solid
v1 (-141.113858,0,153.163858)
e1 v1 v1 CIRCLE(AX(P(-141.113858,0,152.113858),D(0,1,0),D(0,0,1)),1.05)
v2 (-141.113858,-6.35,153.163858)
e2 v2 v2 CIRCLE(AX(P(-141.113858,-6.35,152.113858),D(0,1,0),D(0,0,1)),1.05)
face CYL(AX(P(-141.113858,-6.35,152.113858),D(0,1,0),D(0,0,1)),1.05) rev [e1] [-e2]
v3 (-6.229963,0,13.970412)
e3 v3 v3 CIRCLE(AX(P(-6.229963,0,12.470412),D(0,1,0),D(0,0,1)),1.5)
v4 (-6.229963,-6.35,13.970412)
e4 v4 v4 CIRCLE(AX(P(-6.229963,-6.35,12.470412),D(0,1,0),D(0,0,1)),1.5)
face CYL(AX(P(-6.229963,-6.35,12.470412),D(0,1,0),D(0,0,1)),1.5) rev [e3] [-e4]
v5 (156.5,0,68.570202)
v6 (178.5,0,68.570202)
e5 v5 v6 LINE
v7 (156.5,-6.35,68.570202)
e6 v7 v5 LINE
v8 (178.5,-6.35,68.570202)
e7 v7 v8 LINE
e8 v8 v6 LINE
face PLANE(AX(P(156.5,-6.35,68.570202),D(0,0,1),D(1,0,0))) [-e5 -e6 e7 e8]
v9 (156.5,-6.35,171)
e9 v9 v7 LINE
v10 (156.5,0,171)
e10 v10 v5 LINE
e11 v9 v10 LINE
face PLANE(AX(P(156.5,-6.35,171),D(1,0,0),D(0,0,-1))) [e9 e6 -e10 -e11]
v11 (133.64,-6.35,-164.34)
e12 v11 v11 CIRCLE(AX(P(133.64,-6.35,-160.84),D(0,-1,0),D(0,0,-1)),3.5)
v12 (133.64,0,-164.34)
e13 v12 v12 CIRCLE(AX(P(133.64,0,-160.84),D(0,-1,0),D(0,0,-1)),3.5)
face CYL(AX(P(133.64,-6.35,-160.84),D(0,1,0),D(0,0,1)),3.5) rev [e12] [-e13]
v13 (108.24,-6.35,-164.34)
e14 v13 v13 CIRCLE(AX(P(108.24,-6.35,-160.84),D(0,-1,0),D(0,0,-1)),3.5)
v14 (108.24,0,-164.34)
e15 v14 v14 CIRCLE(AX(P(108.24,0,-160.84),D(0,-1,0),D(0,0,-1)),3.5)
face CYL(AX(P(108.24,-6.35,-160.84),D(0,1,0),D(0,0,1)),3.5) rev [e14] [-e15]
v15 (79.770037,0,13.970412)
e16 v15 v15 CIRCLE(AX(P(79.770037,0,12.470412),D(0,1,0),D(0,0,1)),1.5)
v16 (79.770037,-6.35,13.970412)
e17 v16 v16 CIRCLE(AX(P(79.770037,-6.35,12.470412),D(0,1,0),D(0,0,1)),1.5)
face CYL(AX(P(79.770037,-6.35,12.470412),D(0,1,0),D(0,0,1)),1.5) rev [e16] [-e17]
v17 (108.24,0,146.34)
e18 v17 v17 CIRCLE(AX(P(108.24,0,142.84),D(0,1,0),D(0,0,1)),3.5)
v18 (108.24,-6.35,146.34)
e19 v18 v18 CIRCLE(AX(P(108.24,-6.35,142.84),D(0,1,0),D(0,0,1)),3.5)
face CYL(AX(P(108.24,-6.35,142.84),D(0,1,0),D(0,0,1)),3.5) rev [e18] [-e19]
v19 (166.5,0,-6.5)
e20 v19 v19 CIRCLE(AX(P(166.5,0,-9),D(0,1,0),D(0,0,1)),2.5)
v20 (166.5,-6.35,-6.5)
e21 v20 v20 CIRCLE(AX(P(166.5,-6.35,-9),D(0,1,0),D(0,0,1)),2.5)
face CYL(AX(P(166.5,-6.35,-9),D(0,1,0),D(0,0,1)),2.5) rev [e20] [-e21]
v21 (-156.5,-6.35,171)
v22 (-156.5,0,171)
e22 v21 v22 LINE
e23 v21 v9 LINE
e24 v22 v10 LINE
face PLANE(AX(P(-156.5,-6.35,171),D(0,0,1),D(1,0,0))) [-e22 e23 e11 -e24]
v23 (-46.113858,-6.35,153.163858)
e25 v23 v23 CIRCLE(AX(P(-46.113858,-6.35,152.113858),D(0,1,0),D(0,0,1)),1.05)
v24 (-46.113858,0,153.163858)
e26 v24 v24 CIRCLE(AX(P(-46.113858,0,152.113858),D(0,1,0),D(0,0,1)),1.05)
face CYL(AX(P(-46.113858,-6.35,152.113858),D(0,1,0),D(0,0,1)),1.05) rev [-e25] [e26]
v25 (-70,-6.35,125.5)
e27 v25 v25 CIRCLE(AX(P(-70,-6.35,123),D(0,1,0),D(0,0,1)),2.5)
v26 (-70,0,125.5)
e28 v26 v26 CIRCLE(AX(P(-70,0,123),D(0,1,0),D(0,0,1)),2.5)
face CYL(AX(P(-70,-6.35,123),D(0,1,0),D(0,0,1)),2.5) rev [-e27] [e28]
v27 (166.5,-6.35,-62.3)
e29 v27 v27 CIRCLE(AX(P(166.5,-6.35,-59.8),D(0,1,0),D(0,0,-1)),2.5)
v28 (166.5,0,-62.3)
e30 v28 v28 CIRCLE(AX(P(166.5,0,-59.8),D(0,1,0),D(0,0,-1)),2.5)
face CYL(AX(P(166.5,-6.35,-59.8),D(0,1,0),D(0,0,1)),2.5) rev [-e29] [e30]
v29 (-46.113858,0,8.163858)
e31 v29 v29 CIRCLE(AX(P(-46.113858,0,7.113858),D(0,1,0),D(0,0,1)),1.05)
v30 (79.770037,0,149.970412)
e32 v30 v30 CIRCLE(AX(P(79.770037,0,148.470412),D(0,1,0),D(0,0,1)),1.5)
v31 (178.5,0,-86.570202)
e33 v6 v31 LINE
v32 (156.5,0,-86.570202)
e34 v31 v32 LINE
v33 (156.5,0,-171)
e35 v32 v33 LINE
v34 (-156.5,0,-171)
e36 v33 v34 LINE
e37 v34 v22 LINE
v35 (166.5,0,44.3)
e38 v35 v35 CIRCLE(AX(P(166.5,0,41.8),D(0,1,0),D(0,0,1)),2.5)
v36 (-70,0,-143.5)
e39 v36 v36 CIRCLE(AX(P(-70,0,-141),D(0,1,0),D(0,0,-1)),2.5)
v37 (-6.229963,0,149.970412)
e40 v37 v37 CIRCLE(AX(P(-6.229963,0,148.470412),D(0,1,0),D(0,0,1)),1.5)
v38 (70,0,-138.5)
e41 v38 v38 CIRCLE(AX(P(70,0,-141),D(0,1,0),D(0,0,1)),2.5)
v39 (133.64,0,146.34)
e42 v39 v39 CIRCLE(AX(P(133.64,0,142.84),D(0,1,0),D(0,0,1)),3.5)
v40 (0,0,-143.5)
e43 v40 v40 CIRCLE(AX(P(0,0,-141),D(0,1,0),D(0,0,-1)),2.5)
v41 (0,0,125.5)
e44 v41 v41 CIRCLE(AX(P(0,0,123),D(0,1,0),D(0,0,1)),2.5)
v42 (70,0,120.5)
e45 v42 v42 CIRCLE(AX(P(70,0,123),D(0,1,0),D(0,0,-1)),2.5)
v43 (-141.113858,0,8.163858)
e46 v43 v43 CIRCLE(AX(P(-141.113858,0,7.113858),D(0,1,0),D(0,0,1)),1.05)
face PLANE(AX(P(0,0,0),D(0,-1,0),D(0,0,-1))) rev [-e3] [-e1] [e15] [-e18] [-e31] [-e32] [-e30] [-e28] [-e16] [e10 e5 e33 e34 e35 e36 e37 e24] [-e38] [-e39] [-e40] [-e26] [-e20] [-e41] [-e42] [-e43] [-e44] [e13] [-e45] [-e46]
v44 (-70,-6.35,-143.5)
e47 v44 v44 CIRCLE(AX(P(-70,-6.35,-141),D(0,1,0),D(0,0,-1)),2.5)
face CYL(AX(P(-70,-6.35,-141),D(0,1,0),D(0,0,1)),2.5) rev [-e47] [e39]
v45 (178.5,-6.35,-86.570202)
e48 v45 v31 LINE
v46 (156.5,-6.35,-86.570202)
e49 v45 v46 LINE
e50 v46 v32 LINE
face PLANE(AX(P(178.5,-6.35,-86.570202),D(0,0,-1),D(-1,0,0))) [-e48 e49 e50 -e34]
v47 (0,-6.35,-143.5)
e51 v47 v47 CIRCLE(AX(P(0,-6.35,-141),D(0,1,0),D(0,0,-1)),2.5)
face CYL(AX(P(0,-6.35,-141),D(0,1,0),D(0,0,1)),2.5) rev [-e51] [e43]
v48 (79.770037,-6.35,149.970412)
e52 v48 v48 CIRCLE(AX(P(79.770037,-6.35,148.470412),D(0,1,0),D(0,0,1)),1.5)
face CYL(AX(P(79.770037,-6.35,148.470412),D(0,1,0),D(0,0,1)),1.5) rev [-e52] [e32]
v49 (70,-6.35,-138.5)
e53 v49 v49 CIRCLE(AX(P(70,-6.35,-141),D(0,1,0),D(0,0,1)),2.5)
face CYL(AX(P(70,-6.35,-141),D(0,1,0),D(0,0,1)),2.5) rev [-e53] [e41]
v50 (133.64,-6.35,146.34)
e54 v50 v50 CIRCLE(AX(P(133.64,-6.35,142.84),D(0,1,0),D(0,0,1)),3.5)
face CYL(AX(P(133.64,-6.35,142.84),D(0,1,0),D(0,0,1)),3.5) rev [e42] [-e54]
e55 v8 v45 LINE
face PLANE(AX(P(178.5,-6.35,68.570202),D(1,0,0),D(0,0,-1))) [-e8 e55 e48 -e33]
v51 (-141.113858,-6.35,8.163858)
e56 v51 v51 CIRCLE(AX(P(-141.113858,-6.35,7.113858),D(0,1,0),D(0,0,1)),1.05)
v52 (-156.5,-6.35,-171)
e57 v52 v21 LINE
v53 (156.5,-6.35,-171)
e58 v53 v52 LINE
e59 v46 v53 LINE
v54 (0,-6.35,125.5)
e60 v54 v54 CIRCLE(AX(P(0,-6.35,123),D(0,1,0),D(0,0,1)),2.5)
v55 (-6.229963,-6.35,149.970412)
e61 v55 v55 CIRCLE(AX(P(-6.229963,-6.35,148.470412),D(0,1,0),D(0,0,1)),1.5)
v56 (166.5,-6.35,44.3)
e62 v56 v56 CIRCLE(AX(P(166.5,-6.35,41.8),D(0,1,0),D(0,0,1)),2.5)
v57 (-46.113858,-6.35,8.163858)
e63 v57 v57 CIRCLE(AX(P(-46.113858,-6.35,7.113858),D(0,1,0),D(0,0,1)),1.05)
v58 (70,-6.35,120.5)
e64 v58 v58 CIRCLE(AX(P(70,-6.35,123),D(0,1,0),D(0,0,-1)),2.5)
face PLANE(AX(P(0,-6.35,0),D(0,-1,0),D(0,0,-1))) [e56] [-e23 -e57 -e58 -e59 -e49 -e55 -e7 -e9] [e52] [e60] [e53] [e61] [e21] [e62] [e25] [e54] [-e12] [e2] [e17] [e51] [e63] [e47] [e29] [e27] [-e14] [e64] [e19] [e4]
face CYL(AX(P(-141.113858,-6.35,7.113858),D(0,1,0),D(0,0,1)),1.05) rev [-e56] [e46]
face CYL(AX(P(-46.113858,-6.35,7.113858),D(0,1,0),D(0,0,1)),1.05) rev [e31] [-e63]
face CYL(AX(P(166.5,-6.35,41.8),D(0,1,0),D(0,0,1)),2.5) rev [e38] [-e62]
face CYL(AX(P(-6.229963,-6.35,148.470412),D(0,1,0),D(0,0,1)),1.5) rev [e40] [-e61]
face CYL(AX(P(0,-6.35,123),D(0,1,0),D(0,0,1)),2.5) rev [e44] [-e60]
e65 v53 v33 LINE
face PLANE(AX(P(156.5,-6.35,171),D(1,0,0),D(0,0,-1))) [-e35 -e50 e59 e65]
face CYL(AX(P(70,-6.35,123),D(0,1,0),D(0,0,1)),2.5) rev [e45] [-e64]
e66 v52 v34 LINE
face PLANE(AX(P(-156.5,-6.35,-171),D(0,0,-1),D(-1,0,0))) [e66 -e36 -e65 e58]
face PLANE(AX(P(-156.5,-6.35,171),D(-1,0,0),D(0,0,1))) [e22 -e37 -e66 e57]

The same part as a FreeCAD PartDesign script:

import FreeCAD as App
import Part
import Sketcher
from FreeCAD import Vector

doc = App.newDocument("Part")
params = doc.addObject("Spreadsheet::Sheet", "Params")
for row, (alias, value) in enumerate([
    ("sketch1_width", "313 mm"),
    ("sketch1_height", "342 mm"),
    ("pad1_length", "6.35 mm"),
    ("sketch2_diameter", "5 mm"),
    ("sketch2_width", "22 mm"),
    ("pad2_length", "6.35 mm"),
    ("sketch3_diameter", "5 mm"),
    ("sketch4_diameter", "7 mm"),
    ("sketch5_diameter", "3 mm"),
    ("sketch5_diameter2", "2.1 mm"),
], start=1):
    params.set(f"A{row}", alias)
    params.set(f"B{row}", "=" + value)
    params.setAlias(f"B{row}", alias)

body = doc.addObject("PartDesign::Body", "Body")

# Sketch on XZ plane
sketch1 = body.newObject("Sketcher::SketchObject", "Sketch")
sketch1.AttachmentSupport = (doc.getObject("XZ_Plane"), [""])
sketch1.MapMode = "FlatFace"
sketch1.addGeometry([
    Part.LineSegment(Vector(-156, -171, 0), Vector(-156, 171, 0)),
    Part.LineSegment(Vector(-156, 171, 0), Vector(156, 171, 0)),
    Part.LineSegment(Vector(156, 171, 0), Vector(156, -171, 0)),
    Part.LineSegment(Vector(156, -171, 0), Vector(-156, -171, 0)),
], False)
sketch1.addConstraint([
    Sketcher.Constraint("Coincident", 0, 2, 1, 1),
    Sketcher.Constraint("Coincident", 1, 2, 2, 1),
    Sketcher.Constraint("Coincident", 2, 2, 3, 1),
    Sketcher.Constraint("Coincident", 3, 2, 0, 1),
    Sketcher.Constraint("Vertical", 0),
    Sketcher.Constraint("Horizontal", 1),
    Sketcher.Constraint("Vertical", 2),
    Sketcher.Constraint("Horizontal", 3),
    Sketcher.Constraint("Symmetric", 0, 2, 2, 2, -1, 1),
    Sketcher.Constraint("DistanceX", 1, 1, 1, 2, 313.0),
    Sketcher.Constraint("DistanceY", 0, 1, 0, 2, 342.0),
])
sketch1.setExpression("Constraints[9]", "Params.sketch1_width")
sketch1.setExpression("Constraints[10]", "Params.sketch1_height")
pad1 = body.newObject("PartDesign::Pad", "Pad")
pad1.Profile = sketch1
pad1.setExpression("Length", "Params.pad1_length")

# Sketch on XZ plane
sketch2 = body.newObject("Sketcher::SketchObject", "Sketch001")
sketch2.AttachmentSupport = (doc.getObject("XZ_Plane"), [""])
sketch2.MapMode = "FlatFace"
sketch2.addGeometry([
    Part.LineSegment(Vector(156.5, -86.6, 0), Vector(156.5, 68.6, 0)),  # 0
    Part.LineSegment(Vector(156.5, 68.6, 0), Vector(178.5, 68.6, 0)),  # 1
    Part.LineSegment(Vector(178.5, 68.6, 0), Vector(178.5, -86.6, 0)),  # 2
    Part.LineSegment(Vector(178.5, -86.6, 0), Vector(156.5, -86.6, 0)),  # 3
    Part.Circle(Vector(166.5, 41.8, 0), Vector(0, 0, 1), 2.5),  # 4
    Part.Circle(Vector(166.5, -9, 0), Vector(0, 0, 1), 2.5),  # 5
    Part.Circle(Vector(166.5, -59.8, 0), Vector(0, 0, 1), 2.5),  # 6
], False)
sketch2.addConstraint([
    Sketcher.Constraint("Coincident", 0, 2, 1, 1),
    Sketcher.Constraint("Coincident", 1, 2, 2, 1),
    Sketcher.Constraint("Coincident", 2, 2, 3, 1),
    Sketcher.Constraint("Coincident", 3, 2, 0, 1),
    Sketcher.Constraint("Vertical", 0),
    Sketcher.Constraint("Horizontal", 1),
    Sketcher.Constraint("Vertical", 2),
    Sketcher.Constraint("Horizontal", 3),
    Sketcher.Constraint("Equal", 4, 5),
    Sketcher.Constraint("Equal", 5, 6),
    Sketcher.Constraint("Vertical", 4, 3, 5, 3),
    Sketcher.Constraint("Vertical", 5, 3, 6, 3),
    Sketcher.Constraint("Diameter", 4, 5.0),
    Sketcher.Constraint("DistanceX", 1, 1, 1, 2, 22.0),
    Sketcher.Constraint("DistanceY", 5, 3, -1, 1, 9.0),
    Sketcher.Constraint("DistanceX", 0, 2, 4, 3, 10.0),
    Sketcher.Constraint("DistanceX", -1, 1, 4, 3, 166.5),
    Sketcher.Constraint("DistanceY", -1, 1, 4, 3, 41.8),
    Sketcher.Constraint("DistanceY", 6, 3, -1, 1, 59.8),
    Sketcher.Constraint("DistanceY", -1, 1, 0, 2, 68.570202),
    Sketcher.Constraint("DistanceY", 2, 2, -1, 1, 86.570202),
])
sketch2.setExpression("Constraints[12]", "Params.sketch2_diameter")
sketch2.setExpression("Constraints[13]", "Params.sketch2_width")
pad2 = body.newObject("PartDesign::Pad", "Pad001")
pad2.Profile = sketch2
pad2.setExpression("Length", "Params.pad2_length")

# Sketch on XZ plane
sketch3 = body.newObject("Sketcher::SketchObject", "Sketch002")
sketch3.AttachmentSupport = (doc.getObject("XZ_Plane"), [""])
sketch3.MapMode = "FlatFace"
sketch3.addGeometry([
    Part.Circle(Vector(0, 123, 0), Vector(0, 0, 1), 2.5),  # 0
    Part.Circle(Vector(-70, 123, 0), Vector(0, 0, 1), 2.5),  # 1
    Part.Circle(Vector(70, 123, 0), Vector(0, 0, 1), 2.5),  # 2
    Part.Circle(Vector(-70, -141, 0), Vector(0, 0, 1), 2.5),  # 3
    Part.Circle(Vector(0, -141, 0), Vector(0, 0, 1), 2.5),  # 4
    Part.Circle(Vector(70, -141, 0), Vector(0, 0, 1), 2.5),  # 5
], False)
sketch3.addConstraint([
    Sketcher.Constraint("Equal", 0, 1),
    Sketcher.Constraint("Equal", 1, 2),
    Sketcher.Constraint("Equal", 2, 3),
    Sketcher.Constraint("Equal", 3, 4),
    Sketcher.Constraint("Equal", 4, 5),
    Sketcher.Constraint("Symmetric", 1, 3, 2, 3, -2),
    Sketcher.Constraint("Symmetric", 3, 3, 5, 3, -2),
    Sketcher.Constraint("PointOnObject", 0, 3, -2),
    Sketcher.Constraint("PointOnObject", 4, 3, -2),
    Sketcher.Constraint("Horizontal", 0, 3, 1, 3),
    Sketcher.Constraint("Horizontal", 3, 3, 4, 3),
    Sketcher.Constraint("Vertical", 1, 3, 3, 3),
    Sketcher.Constraint("Diameter", 0, 5.0),
    Sketcher.Constraint("DistanceY", -1, 1, 0, 3, 123.0),
    Sketcher.Constraint("DistanceX", 1, 3, -1, 1, 70.0),
    Sketcher.Constraint("DistanceY", 3, 3, -1, 1, 141.0),
])
sketch3.setExpression("Constraints[12]", "Params.sketch3_diameter")
pocket1 = body.newObject("PartDesign::Pocket", "Pocket")
pocket1.Profile = sketch3
pocket1.Type = "ThroughAll"
pocket1.Reversed = True

# Sketch on XZ plane
sketch4 = body.newObject("Sketcher::SketchObject", "Sketch003")
sketch4.AttachmentSupport = (doc.getObject("XZ_Plane"), [""])
sketch4.MapMode = "FlatFace"
sketch4.addGeometry([
    Part.Circle(Vector(133.6, 142.8, 0), Vector(0, 0, 1), 3.5),
    Part.Circle(Vector(108.2, 142.8, 0), Vector(0, 0, 1), 3.5),
], False)
sketch4.addConstraint([
    Sketcher.Constraint("Equal", 0, 1),
    Sketcher.Constraint("Horizontal", 0, 3, 1, 3),
    Sketcher.Constraint("Diameter", 0, 7.0),
    Sketcher.Constraint("DistanceX", 1, 3, 0, 3, 25.4),
    Sketcher.Constraint("DistanceX", -1, 1, 0, 3, 133.64),
    Sketcher.Constraint("DistanceY", -1, 1, 0, 3, 142.84),
])
sketch4.setExpression("Constraints[2]", "Params.sketch4_diameter")
pocket2 = body.newObject("PartDesign::Pocket", "Pocket001")
pocket2.Profile = sketch4
pocket2.Type = "ThroughAll"
pocket2.Reversed = True
doc.recompute()

datumplane = body.newObject("PartDesign::Plane", "DatumPlane")
datumplane.AttachmentSupport = (doc.getObject("XY_Plane"), [""])
datumplane.MapMode = "FlatFace"
datumplane.AttachmentOffset = App.Placement(Vector(0, 0, -9), App.Rotation())
mirrored = body.newObject("PartDesign::Mirrored", "Mirrored")
mirrored.Originals = [pocket2]
mirrored.MirrorPlane = (datumplane, [""])
body.Tip = mirrored

# Sketch on XZ plane
sketch5 = body.newObject("Sketcher::SketchObject", "Sketch004")
sketch5.AttachmentSupport = (doc.getObject("XZ_Plane"), [""])
sketch5.MapMode = "FlatFace"
sketch5.addGeometry([
    Part.Circle(Vector(79.8, 148.5, 0), Vector(0, 0, 1), 1.5),  # 0
    Part.Circle(Vector(-6.2, 148.5, 0), Vector(0, 0, 1), 1.5),  # 1
    Part.Circle(Vector(-6.2, 12.5, 0), Vector(0, 0, 1), 1.5),  # 2
    Part.Circle(Vector(79.8, 12.5, 0), Vector(0, 0, 1), 1.5),  # 3
    Part.Circle(Vector(-46.1, 7.1, 0), Vector(0, 0, 1), 1.1),  # 4
    Part.Circle(Vector(-46.1, 152.1, 0), Vector(0, 0, 1), 1.1),  # 5
    Part.Circle(Vector(-141.1, 7.1, 0), Vector(0, 0, 1), 1.1),  # 6
    Part.Circle(Vector(-141.1, 152.1, 0), Vector(0, 0, 1), 1.1),  # 7
], False)
sketch5.addConstraint([
    Sketcher.Constraint("Equal", 0, 1),
    Sketcher.Constraint("Equal", 1, 2),
    Sketcher.Constraint("Equal", 2, 3),
    Sketcher.Constraint("Equal", 4, 5),
    Sketcher.Constraint("Equal", 5, 6),
    Sketcher.Constraint("Equal", 6, 7),
    Sketcher.Constraint("Horizontal", 0, 3, 1, 3),
    Sketcher.Constraint("Horizontal", 2, 3, 3, 3),
    Sketcher.Constraint("Horizontal", 4, 3, 6, 3),
    Sketcher.Constraint("Horizontal", 5, 3, 7, 3),
    Sketcher.Constraint("Vertical", 1, 3, 2, 3),
    Sketcher.Constraint("Vertical", 0, 3, 3, 3),
    Sketcher.Constraint("Vertical", 4, 3, 5, 3),
    Sketcher.Constraint("Vertical", 6, 3, 7, 3),
    Sketcher.Constraint("Diameter", 0, 3.0),
    Sketcher.Constraint("Diameter", 4, 2.1),
    Sketcher.Constraint("DistanceX", 1, 3, 0, 3, 86.0),
    Sketcher.Constraint("DistanceY", 2, 3, 1, 3, 136.0),
    Sketcher.Constraint("DistanceY", 4, 3, 5, 3, 145.0),
    Sketcher.Constraint("DistanceX", 6, 3, 4, 3, 95.0),
    Sketcher.Constraint("DistanceY", -1, 1, 0, 3, 148.470412),
    Sketcher.Constraint("DistanceX", -1, 1, 0, 3, 79.770037),
    Sketcher.Constraint("DistanceX", 4, 3, -1, 1, 46.113858),
    Sketcher.Constraint("DistanceY", -1, 1, 4, 3, 7.113858),
])
sketch5.setExpression("Constraints[14]", "Params.sketch5_diameter")
sketch5.setExpression("Constraints[15]", "Params.sketch5_diameter2")
pocket3 = body.newObject("PartDesign::Pocket", "Pocket002")
pocket3.Profile = sketch5
pocket3.Type = "ThroughAll"
pocket3.Reversed = True

doc.recompute()
